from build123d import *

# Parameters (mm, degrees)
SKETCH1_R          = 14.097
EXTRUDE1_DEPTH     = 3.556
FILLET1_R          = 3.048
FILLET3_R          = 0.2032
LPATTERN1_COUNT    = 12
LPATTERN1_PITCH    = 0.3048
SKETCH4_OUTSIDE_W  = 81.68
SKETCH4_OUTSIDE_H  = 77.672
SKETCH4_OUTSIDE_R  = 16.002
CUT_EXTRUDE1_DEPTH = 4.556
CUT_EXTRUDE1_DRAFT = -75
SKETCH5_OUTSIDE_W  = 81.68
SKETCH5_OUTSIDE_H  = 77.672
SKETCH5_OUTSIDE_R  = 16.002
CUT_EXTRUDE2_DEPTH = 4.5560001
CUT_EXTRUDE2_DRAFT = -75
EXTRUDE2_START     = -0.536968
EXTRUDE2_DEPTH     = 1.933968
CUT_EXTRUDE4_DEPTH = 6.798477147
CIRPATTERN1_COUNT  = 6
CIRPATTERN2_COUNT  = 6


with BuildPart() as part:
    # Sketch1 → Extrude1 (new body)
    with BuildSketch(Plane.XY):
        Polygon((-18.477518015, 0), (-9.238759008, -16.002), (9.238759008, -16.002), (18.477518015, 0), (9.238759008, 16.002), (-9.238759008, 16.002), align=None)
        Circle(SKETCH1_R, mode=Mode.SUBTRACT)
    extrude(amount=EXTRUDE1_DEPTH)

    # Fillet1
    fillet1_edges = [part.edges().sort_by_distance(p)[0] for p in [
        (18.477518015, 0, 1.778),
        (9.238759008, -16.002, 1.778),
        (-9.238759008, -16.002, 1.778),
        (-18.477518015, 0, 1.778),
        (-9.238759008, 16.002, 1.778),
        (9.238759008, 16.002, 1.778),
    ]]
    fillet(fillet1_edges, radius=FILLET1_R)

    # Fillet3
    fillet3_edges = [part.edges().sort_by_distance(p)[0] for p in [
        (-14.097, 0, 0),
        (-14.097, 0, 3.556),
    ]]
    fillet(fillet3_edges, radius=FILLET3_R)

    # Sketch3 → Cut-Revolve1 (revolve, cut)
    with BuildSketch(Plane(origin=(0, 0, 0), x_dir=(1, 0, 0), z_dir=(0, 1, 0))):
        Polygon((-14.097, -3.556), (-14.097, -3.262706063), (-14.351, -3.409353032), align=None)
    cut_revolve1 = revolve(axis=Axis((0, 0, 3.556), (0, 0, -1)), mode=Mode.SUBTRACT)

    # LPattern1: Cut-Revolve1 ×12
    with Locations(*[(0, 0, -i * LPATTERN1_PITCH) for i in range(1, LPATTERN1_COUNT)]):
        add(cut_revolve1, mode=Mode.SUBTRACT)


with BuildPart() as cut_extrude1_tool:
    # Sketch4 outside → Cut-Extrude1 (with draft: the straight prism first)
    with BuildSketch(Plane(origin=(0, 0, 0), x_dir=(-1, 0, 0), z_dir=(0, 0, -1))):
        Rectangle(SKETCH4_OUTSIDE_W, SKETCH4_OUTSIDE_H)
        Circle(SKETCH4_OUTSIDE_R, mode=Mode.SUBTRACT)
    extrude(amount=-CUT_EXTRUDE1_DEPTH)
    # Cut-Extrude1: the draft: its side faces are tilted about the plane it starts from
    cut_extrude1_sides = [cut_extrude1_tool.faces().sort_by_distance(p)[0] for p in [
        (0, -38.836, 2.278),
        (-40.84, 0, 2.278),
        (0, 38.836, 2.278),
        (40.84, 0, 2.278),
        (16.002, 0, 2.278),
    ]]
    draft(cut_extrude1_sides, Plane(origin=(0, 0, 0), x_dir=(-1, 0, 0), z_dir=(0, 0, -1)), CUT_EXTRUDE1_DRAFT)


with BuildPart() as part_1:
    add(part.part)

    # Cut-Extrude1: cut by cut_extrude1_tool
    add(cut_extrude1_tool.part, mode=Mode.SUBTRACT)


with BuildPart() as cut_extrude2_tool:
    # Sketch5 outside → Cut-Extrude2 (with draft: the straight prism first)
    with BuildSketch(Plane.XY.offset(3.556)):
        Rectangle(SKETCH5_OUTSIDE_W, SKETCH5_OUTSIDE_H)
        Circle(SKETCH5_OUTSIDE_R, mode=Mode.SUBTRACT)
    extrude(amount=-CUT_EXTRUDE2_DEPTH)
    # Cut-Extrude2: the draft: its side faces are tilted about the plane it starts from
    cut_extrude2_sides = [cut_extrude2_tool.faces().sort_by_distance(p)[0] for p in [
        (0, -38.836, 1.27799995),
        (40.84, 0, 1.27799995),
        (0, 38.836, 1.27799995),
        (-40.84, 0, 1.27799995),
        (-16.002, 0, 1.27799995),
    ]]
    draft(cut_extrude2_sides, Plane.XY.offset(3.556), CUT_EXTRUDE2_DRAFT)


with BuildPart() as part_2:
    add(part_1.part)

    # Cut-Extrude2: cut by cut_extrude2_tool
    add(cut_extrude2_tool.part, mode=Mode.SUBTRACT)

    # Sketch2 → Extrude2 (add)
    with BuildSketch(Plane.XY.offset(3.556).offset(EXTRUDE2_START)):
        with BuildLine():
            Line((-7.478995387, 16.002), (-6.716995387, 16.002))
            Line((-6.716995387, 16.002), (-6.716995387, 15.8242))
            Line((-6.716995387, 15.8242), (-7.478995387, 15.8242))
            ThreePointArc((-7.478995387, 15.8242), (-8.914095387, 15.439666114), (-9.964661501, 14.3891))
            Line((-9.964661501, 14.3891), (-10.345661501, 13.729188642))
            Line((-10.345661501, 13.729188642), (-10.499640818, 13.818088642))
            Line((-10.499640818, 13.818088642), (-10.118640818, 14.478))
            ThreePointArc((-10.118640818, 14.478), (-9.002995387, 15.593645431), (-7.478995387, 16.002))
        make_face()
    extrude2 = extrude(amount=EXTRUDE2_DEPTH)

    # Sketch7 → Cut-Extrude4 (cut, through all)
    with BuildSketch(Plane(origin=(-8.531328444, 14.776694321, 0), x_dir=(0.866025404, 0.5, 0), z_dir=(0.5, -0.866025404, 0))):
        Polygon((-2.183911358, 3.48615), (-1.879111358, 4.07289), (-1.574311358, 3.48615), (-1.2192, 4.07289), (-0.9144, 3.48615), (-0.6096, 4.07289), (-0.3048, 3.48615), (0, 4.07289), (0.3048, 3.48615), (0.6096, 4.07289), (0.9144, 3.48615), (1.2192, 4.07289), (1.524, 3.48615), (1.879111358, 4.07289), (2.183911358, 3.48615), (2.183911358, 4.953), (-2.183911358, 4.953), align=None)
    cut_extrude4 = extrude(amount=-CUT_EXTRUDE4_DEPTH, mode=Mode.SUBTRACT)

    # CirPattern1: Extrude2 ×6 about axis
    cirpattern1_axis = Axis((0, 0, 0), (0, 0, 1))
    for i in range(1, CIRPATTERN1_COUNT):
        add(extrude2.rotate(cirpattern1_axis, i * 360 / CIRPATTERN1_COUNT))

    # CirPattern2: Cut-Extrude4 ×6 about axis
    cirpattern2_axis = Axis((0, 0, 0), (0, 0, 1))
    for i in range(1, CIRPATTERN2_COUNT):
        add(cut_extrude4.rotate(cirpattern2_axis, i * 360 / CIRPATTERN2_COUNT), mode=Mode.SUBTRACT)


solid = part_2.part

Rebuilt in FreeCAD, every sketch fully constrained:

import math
import FreeCAD as App
import Part
import Sketcher

V = App.Vector
Q = App.Units.Quantity


def edges_at(feature, points):
    """Names of the edges that pass closest to the given points."""
    edges = feature.Shape.Edges
    near = lambda p: min(range(len(edges)), key=lambda i: edges[i].distToShape(Part.Vertex(*p))[0])
    return sorted({f"Edge{near(p) + 1}" for p in points})


def faces_at(feature, points):
    """Names of the faces that lie closest to the given points."""
    faces = feature.Shape.Faces
    near = lambda p: min(range(len(faces)), key=lambda i: faces[i].distToShape(Part.Vertex(*p))[0])
    return sorted({f"Face{near(p) + 1}" for p in points})

doc = App.newDocument("Part")
body = doc.addObject("PartDesign::Body", "Body")

sketch1 = doc.addObject("Sketcher::SketchObject", "Sketch")
body.addObject(sketch1)
sketch1.AttachmentSupport = (doc.XY_Plane, [""])
sketch1.MapMode = "FlatFace"
sketch1.addGeometry([
    Part.LineSegment(V(-18.477518, 0, 0), V(-9.238759, -16.002, 0)),
    Part.LineSegment(V(-9.238759, -16.002, 0), V(9.238759, -16.002, 0)),
    Part.LineSegment(V(9.238759, -16.002, 0), V(18.477518, 0, 0)),
    Part.LineSegment(V(18.477518, 0, 0), V(9.238759, 16.002, 0)),
    Part.LineSegment(V(9.238759, 16.002, 0), V(-9.238759, 16.002, 0)),
    Part.LineSegment(V(-9.238759, 16.002, 0), V(-18.477518, 0, 0)),
    Part.Circle(V(0, 0, 0), V(0, 0, 1), 14.097),
], False)
sketch1.addConstraint([
    Sketcher.Constraint("Coincident", 0, 2, 1, 1),
    Sketcher.Constraint("Coincident", 1, 2, 2, 1),
    Sketcher.Constraint("Coincident", 2, 2, 3, 1),
    Sketcher.Constraint("Coincident", 3, 2, 4, 1),
    Sketcher.Constraint("Coincident", 4, 2, 5, 1),
    Sketcher.Constraint("Coincident", 5, 2, 0, 1),
    Sketcher.Constraint("Horizontal", 1),
    Sketcher.Constraint("Horizontal", 4),
    Sketcher.Constraint("Coincident", 6, 3, -1, 1),
    Sketcher.Constraint("Symmetric", 0, 2, 3, 2, -1, 1),
    Sketcher.Constraint("Symmetric", 2, 2, 5, 2, -1, 1),
    Sketcher.Constraint("PointOnObject", 2, 2, -1),
    Sketcher.Constraint("Parallel", 2, 5),
    Sketcher.Constraint("Vertical", 1, 2, 3, 2),
    Sketcher.Constraint("Diameter", 6, Q("1.11 in")),
    Sketcher.Constraint("Angle", 0, Q("-60 deg")),
    Sketcher.Constraint("DistanceY", 0, 2, -1, 1, Q("0.63 in")),
    Sketcher.Constraint("DistanceX", 1, 1, 1, 2, Q("18.477518 mm")),
])
pad1 = doc.addObject("PartDesign::Pad", "Pad")
body.addObject(pad1)
pad1.Profile = sketch1
pad1.Length = Q("0.14 in")
doc.recompute()

fillet = doc.addObject("PartDesign::Fillet", "Fillet")
body.addObject(fillet)
fillet.Base = (pad1, edges_at(pad1, [
    (18.478, 0, 1.778),
    (9.239, -16.002, 1.778),
    (-9.239, -16.002, 1.778),
    (-18.478, 0, 1.778),
    (-9.239, 16.002, 1.778),
    (9.239, 16.002, 1.778),
]))
fillet.Radius = Q("0.12 in")
doc.recompute()

fillet2 = doc.addObject("PartDesign::Fillet", "Fillet001")
body.addObject(fillet2)
fillet2.Base = (fillet, edges_at(fillet, [(-14.097, 0, 0), (-14.097, 0, 3.556)]))
fillet2.Radius = Q("0.008 in")

sketch2 = doc.addObject("Sketcher::SketchObject", "Sketch001")
body.addObject(sketch2)
sketch2.AttachmentSupport = (doc.XZ_Plane, [""])
sketch2.MapMode = "FlatFace"
sketch2.addGeometry([
    Part.LineSegment(V(-14.097, 3.556, 0), V(-14.097, 3.262706, 0)),
    Part.LineSegment(V(-14.097, 3.262706, 0), V(-14.351, 3.409353, 0)),
    Part.LineSegment(V(-14.351, 3.409353, 0), V(-14.097, 3.556, 0)),
], False)
sketch2.addConstraint([
    Sketcher.Constraint("Coincident", 0, 2, 1, 1),
    Sketcher.Constraint("Coincident", 1, 2, 2, 1),
    Sketcher.Constraint("Coincident", 2, 2, 0, 1),
    Sketcher.Constraint("Vertical", 0),
    Sketcher.Constraint("Equal", 1, 2),
    Sketcher.Constraint("Angle", 1, Q("150 deg")),
    Sketcher.Constraint("DistanceY", -1, 1, 2, 2, Q("0.14 in")),
    Sketcher.Constraint("DistanceX", 1, 2, 0, 2, Q("0.01 in")),
    Sketcher.Constraint("DistanceX", 0, 2, -1, 1, Q("0.555 in")),
])
groove = doc.addObject("PartDesign::Groove", "Groove")
body.addObject(groove)
groove.Profile = sketch2
groove.ReferenceAxis = (sketch2, ["V_Axis"])
groove.Angle = 360
doc.recompute()

linearpattern = doc.addObject("PartDesign::LinearPattern", "LinearPattern")
body.addObject(linearpattern)
linearpattern.Originals = [groove]
linearpattern.Direction = (doc.Z_Axis, [""])
linearpattern.Mode = "offset"
linearpattern.Offset = Q("0.012 in")
linearpattern.Occurrences = 12
linearpattern.Reversed = True
body.Tip = linearpattern
body2 = doc.addObject("PartDesign::Body", "Body001")

sketch3 = doc.addObject("Sketcher::SketchObject", "Sketch002")
body2.addObject(sketch3)
sketch3.AttachmentSupport = (doc.getObject("XY_Plane001"), [""])
sketch3.MapMode = "FlatFace"
sketch3.addGeometry([
    Part.LineSegment(V(40.84, 38.836, 0), V(40.84, -38.836, 0)),
    Part.LineSegment(V(40.84, -38.836, 0), V(-40.84, -38.836, 0)),
    Part.LineSegment(V(-40.84, -38.836, 0), V(-40.84, 38.836, 0)),
    Part.LineSegment(V(-40.84, 38.836, 0), V(40.84, 38.836, 0)),
    Part.Circle(V(0, 0, 0), V(0, 0, 1), 16.002),
], False)
sketch3.addConstraint([
    Sketcher.Constraint("Coincident", 0, 2, 1, 1),
    Sketcher.Constraint("Coincident", 1, 2, 2, 1),
    Sketcher.Constraint("Coincident", 2, 2, 3, 1),
    Sketcher.Constraint("Coincident", 3, 2, 0, 1),
    Sketcher.Constraint("Vertical", 0),
    Sketcher.Constraint("Horizontal", 1),
    Sketcher.Constraint("Vertical", 2),
    Sketcher.Constraint("Horizontal", 3),
    Sketcher.Constraint("Coincident", 4, 3, -1, 1),
    Sketcher.Constraint("Symmetric", 0, 2, 2, 2, -1, 1),
    Sketcher.Constraint("Diameter", 4, Q("1.26 in")),
    Sketcher.Constraint("DistanceX", 1, 2, 1, 1, Q("81.68 mm")),
    Sketcher.Constraint("DistanceY", 0, 2, 0, 1, Q("77.672 mm")),
])
pad2 = doc.addObject("PartDesign::Pad", "Pad001")
body2.addObject(pad2)
pad2.Profile = sketch3
pad2.Length = 4.556
doc.recompute()

draft = doc.addObject("PartDesign::Draft", "Draft")
body2.addObject(draft)
draft.Base = (pad2, faces_at(pad2, [
    (0, -38.836, 2.278),
    (-40.84, 0, 2.278),
    (0, 38.836, 2.278),
    (40.84, 0, 2.278),
    (16.002, 0, 2.278),
]))
draft.NeutralPlane = (doc.getObject("XY_Plane001"), [""])
draft.Angle = 75
draft.Reversed = False
doc.recompute()

boolean = doc.addObject("PartDesign::Boolean", "Boolean")
body.addObject(boolean)
boolean.Type = "Cut"
boolean.addObjects([body2])
body3 = doc.addObject("PartDesign::Body", "Body002")

sketch4 = doc.addObject("Sketcher::SketchObject", "Sketch003")
body3.addObject(sketch4)
sketch4.AttachmentSupport = (doc.getObject("XY_Plane002"), [""])
sketch4.MapMode = "FlatFace"
sketch4.AttachmentOffset = App.Placement(V(0, 0, 0.14 * 25.4), App.Rotation())
sketch4.addGeometry([
    Part.LineSegment(V(-40.84, 38.836, 0), V(-40.84, -38.836, 0)),
    Part.LineSegment(V(-40.84, -38.836, 0), V(40.84, -38.836, 0)),
    Part.LineSegment(V(40.84, -38.836, 0), V(40.84, 38.836, 0)),
    Part.LineSegment(V(40.84, 38.836, 0), V(-40.84, 38.836, 0)),
    Part.Circle(V(0, 0, 0), V(0, 0, 1), 16.002),
], False)
sketch4.addConstraint([
    Sketcher.Constraint("Coincident", 0, 2, 1, 1),
    Sketcher.Constraint("Coincident", 1, 2, 2, 1),
    Sketcher.Constraint("Coincident", 2, 2, 3, 1),
    Sketcher.Constraint("Coincident", 3, 2, 0, 1),
    Sketcher.Constraint("Vertical", 0),
    Sketcher.Constraint("Horizontal", 1),
    Sketcher.Constraint("Vertical", 2),
    Sketcher.Constraint("Horizontal", 3),
    Sketcher.Constraint("Coincident", 4, 3, -1, 1),
    Sketcher.Constraint("Symmetric", 0, 2, 2, 2, -1, 1),
    Sketcher.Constraint("Diameter", 4, Q("1.26 in")),
    Sketcher.Constraint("DistanceX", 1, 1, 1, 2, Q("81.68 mm")),
    Sketcher.Constraint("DistanceY", 0, 2, 0, 1, Q("77.672 mm")),
])
pad3 = doc.addObject("PartDesign::Pad", "Pad002")
body3.addObject(pad3)
pad3.Profile = sketch4
pad3.Length = 4.556
pad3.Reversed = True
doc.recompute()

datumplane = doc.addObject("PartDesign::Plane", "DatumPlane")
body3.addObject(datumplane)
datumplane.AttachmentSupport = (doc.getObject("XY_Plane002"), [""])
datumplane.MapMode = "FlatFace"
datumplane.AttachmentOffset = App.Placement(V(0, 0, 0.14 * 25.4), App.Rotation())
draft2 = doc.addObject("PartDesign::Draft", "Draft001")
body3.addObject(draft2)
draft2.Base = (pad3, faces_at(pad3, [
    (0, -38.836, 1.278),
    (40.84, 0, 1.278),
    (0, 38.836, 1.278),
    (-40.84, 0, 1.278),
    (-16.002, 0, 1.278),
]))
draft2.NeutralPlane = (datumplane, [""])
draft2.Angle = 75
draft2.Reversed = True
doc.recompute()

boolean2 = doc.addObject("PartDesign::Boolean", "Boolean001")
body.addObject(boolean2)
boolean2.Type = "Cut"
boolean2.addObjects([body3])

sketch5 = doc.addObject("Sketcher::SketchObject", "Sketch004")
body.addObject(sketch5)
sketch5.AttachmentSupport = (doc.XY_Plane, [""])
sketch5.MapMode = "FlatFace"
sketch5.AttachmentOffset = App.Placement(V(0, 0, 3.019032), App.Rotation())
sketch5.addGeometry([
    Part.LineSegment(V(-6.716995, 16.002, 0), V(-7.478995, 16.002, 0)),
    Part.ArcOfCircle(Part.Circle(V(-7.478995, 12.954, 0), V(0, 0, 1), 3.048), math.radians(90), math.radians(150)),
    Part.LineSegment(V(-10.118641, 14.478, 0), V(-10.499641, 13.818089, 0)),
    Part.LineSegment(V(-10.499641, 13.818089, 0), V(-10.345662, 13.729189, 0)),
    Part.LineSegment(V(-10.345662, 13.729189, 0), V(-9.964662, 14.3891, 0)),
    Part.ArcOfCircle(Part.Circle(V(-7.478995, 12.954, 0), V(0, 0, 1), 2.8702), math.radians(90), math.radians(150)),
    Part.LineSegment(V(-7.478995, 15.8242, 0), V(-6.716995, 15.8242, 0)),
    Part.LineSegment(V(-6.716995, 15.8242, 0), V(-6.716995, 16.002, 0)),
], False)
sketch5.addConstraint([
    Sketcher.Constraint("Tangent", 0, 2, 1, 1),
    Sketcher.Constraint("Tangent", 1, 2, 2, 1),
    Sketcher.Constraint("Coincident", 2, 2, 3, 1),
    Sketcher.Constraint("Coincident", 3, 2, 4, 1),
    Sketcher.Constraint("Tangent", 4, 2, 5, 2),
    Sketcher.Constraint("Tangent", 5, 1, 6, 1),
    Sketcher.Constraint("Coincident", 6, 2, 7, 1),
    Sketcher.Constraint("Coincident", 7, 2, 0, 1),
    Sketcher.Constraint("Horizontal", 0),
    Sketcher.Constraint("Horizontal", 6),
    Sketcher.Constraint("Vertical", 7),
    Sketcher.Constraint("Coincident", 5, 3, 1, 3),
    Sketcher.Constraint("Perpendicular", 2, 3),
    Sketcher.Constraint("Perpendicular", 3, 4),
    Sketcher.Constraint("Radius", 1, Q("0.12 in")),
    Sketcher.Constraint("Angle", 2, Q("-120 deg")),
    Sketcher.Constraint("Radius", 5, Q("0.113 in")),
    Sketcher.Constraint("DistanceX", 0, 2, 0, 1, Q("0.03 in")),
    Sketcher.Constraint("Distance", 2, Q("0.03 in")),
    Sketcher.Constraint("DistanceY", -1, 1, 1, 3, Q("0.51 in")),
    Sketcher.Constraint("DistanceX", 1, 2, -1, 1, Q("10.118641 mm")),
])
pad4 = doc.addObject("PartDesign::Pad", "Pad003")
body.addObject(pad4)
pad4.Profile = sketch5
pad4.Length = 1.933968

sketch6 = doc.addObject("Sketcher::SketchObject", "Sketch005")
body.addObject(sketch6)
sketch6.Placement = App.Placement(V(-8.531328, 14.776694, 0), App.Rotation(V(0.866025404, 0.5, 0), V(0, 0, 1), V(0.5, -0.866025404, 0), "ZXY"))
sketch6.addGeometry([
    Part.LineSegment(V(-2.183911, 3.48615, 0), V(-1.879111, 4.07289, 0)),
    Part.LineSegment(V(-1.879111, 4.07289, 0), V(-1.574311, 3.48615, 0)),
    Part.LineSegment(V(-1.574311, 3.48615, 0), V(-1.2192, 4.07289, 0)),
    Part.LineSegment(V(-1.2192, 4.07289, 0), V(-0.9144, 3.48615, 0)),
    Part.LineSegment(V(-0.9144, 3.48615, 0), V(-0.6096, 4.07289, 0)),
    Part.LineSegment(V(-0.6096, 4.07289, 0), V(-0.3048, 3.48615, 0)),
    Part.LineSegment(V(-0.3048, 3.48615, 0), V(0, 4.07289, 0)),
    Part.LineSegment(V(0, 4.07289, 0), V(0.3048, 3.48615, 0)),
    Part.LineSegment(V(0.3048, 3.48615, 0), V(0.6096, 4.07289, 0)),
    Part.LineSegment(V(0.6096, 4.07289, 0), V(0.9144, 3.48615, 0)),
    Part.LineSegment(V(0.9144, 3.48615, 0), V(1.2192, 4.07289, 0)),
    Part.LineSegment(V(1.2192, 4.07289, 0), V(1.524, 3.48615, 0)),
    Part.LineSegment(V(1.524, 3.48615, 0), V(1.879111, 4.07289, 0)),
    Part.LineSegment(V(1.879111, 4.07289, 0), V(2.183911, 3.48615, 0)),
    Part.LineSegment(V(2.183911, 3.48615, 0), V(2.183911, 4.953, 0)),
    Part.LineSegment(V(2.183911, 4.953, 0), V(-2.183911, 4.953, 0)),
    Part.LineSegment(V(-2.183911, 4.953, 0), V(-2.183911, 3.48615, 0)),
], False)
sketch6.addConstraint([
    Sketcher.Constraint("Coincident", 0, 2, 1, 1),
    Sketcher.Constraint("Coincident", 1, 2, 2, 1),
    Sketcher.Constraint("Coincident", 2, 2, 3, 1),
    Sketcher.Constraint("Coincident", 3, 2, 4, 1),
    Sketcher.Constraint("Coincident", 4, 2, 5, 1),
    Sketcher.Constraint("Coincident", 5, 2, 6, 1),
    Sketcher.Constraint("Coincident", 6, 2, 7, 1),
    Sketcher.Constraint("Coincident", 7, 2, 8, 1),
    Sketcher.Constraint("Coincident", 8, 2, 9, 1),
    Sketcher.Constraint("Coincident", 9, 2, 10, 1),
    Sketcher.Constraint("Coincident", 10, 2, 11, 1),
    Sketcher.Constraint("Coincident", 11, 2, 12, 1),
    Sketcher.Constraint("Coincident", 12, 2, 13, 1),
    Sketcher.Constraint("Coincident", 13, 2, 14, 1),
    Sketcher.Constraint("Coincident", 14, 2, 15, 1),
    Sketcher.Constraint("Coincident", 15, 2, 16, 1),
    Sketcher.Constraint("Coincident", 16, 2, 0, 1),
    Sketcher.Constraint("Vertical", 14),
    Sketcher.Constraint("Horizontal", 15),
    Sketcher.Constraint("Vertical", 16),
    Sketcher.Constraint("Symmetric", 5, 2, 7, 2, -2),
    Sketcher.Constraint("Symmetric", 4, 2, 8, 2, -2),
    Sketcher.Constraint("Symmetric", 3, 2, 9, 2, -2),
    Sketcher.Constraint("Symmetric", 2, 2, 10, 2, -2),
    Sketcher.Constraint("Symmetric", 0, 2, 12, 2, -2),
    Sketcher.Constraint("Symmetric", 13, 2, 16, 2, -2),
    Sketcher.Constraint("PointOnObject", 6, 2, -2),
    Sketcher.Constraint("Parallel", 1, 3),
    Sketcher.Constraint("Parallel", 0, 4),
    Sketcher.Constraint("Parallel", 3, 5),
    Sketcher.Constraint("Parallel", 4, 6),
    Sketcher.Constraint("Parallel", 5, 7),
    Sketcher.Constraint("Parallel", 9, 11),
    Sketcher.Constraint("Parallel", 2, 12),
    Sketcher.Constraint("Horizontal", 0, 2, 2, 2),
    Sketcher.Constraint("Horizontal", 1, 2, 3, 2),
    Sketcher.Constraint("Horizontal", 2, 2, 4, 2),
    Sketcher.Constraint("Horizontal", 3, 2, 5, 2),
    Sketcher.Constraint("Horizontal", 4, 2, 6, 2),
    Sketcher.Constraint("Horizontal", 11, 2, 13, 2),
    Sketcher.Constraint("DistanceX", -1, 1, 11, 2, Q("0.06 in")),
    Sketcher.Constraint("DistanceY", -1, 1, 14, 2, Q("0.195 in")),
    Sketcher.Constraint("DistanceY", 1, 2, 0, 2, Q("0.0231 in")),
    Sketcher.Constraint("DistanceY", 14, 1, 14, 2, Q("1.46685 mm")),
    Sketcher.Constraint("DistanceX", 15, 2, 15, 1, Q("4.367823 mm")),
])
pocket1 = doc.addObject("PartDesign::Pocket", "Pocket")
body.addObject(pocket1)
pocket1.Profile = sketch6
pocket1.Type = "ThroughAll"
doc.recompute()

polarpattern = doc.addObject("PartDesign::PolarPattern", "PolarPattern")
body.addObject(polarpattern)
polarpattern.Originals = [pad4]
polarpattern.Axis = (doc.Z_Axis, [""])
polarpattern.Angle = 360
polarpattern.Occurrences = 6
body.Tip = polarpattern
doc.recompute()

polarpattern2 = doc.addObject("PartDesign::PolarPattern", "PolarPattern001")
body.addObject(polarpattern2)
polarpattern2.Originals = [pocket1]
polarpattern2.Axis = (doc.Z_Axis, [""])
polarpattern2.Angle = 360
polarpattern2.Occurrences = 6
body.Tip = polarpattern2

doc.recompute()
